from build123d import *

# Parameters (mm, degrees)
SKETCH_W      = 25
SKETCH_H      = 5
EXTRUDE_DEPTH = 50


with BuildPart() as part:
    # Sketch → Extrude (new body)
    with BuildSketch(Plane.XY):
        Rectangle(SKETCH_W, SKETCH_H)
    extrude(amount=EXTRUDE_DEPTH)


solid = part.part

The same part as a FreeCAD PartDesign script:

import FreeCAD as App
import Part
import Sketcher

V = App.Vector
Q = App.Units.Quantity


def add_polygon(sketch, points):
    """Adds a closed chain of lines whose ends are joined by coincident constraints."""
    first, n = sketch.GeometryCount, len(points)
    for a, b in zip(points, points[1:] + points[:1]):
        sketch.addGeometry(Part.LineSegment(App.Vector(*a, 0), App.Vector(*b, 0)), False)
    for i in range(n):
        sketch.addConstraint(Sketcher.Constraint("Coincident", first + i, 2, first + (i + 1) % n, 1))

doc = App.newDocument("Part")
body = doc.addObject("PartDesign::Body", "Body")

# Sketch on XY plane
sketch1 = doc.addObject("Sketcher::SketchObject", "Sketch")
body.addObject(sketch1)
sketch1.AttachmentSupport = (doc.XY_Plane, [""])
sketch1.MapMode = "FlatFace"
add_polygon(sketch1, [(-12, 2), (-12, -2), (12, -2), (12, 2)])  # lines 0-3
sketch1.addConstraint([
    Sketcher.Constraint("Vertical", 0),
    Sketcher.Constraint("Horizontal", 1),
    Sketcher.Constraint("Vertical", 2),
    Sketcher.Constraint("Horizontal", 3),
    Sketcher.Constraint("Symmetric", 0, 2, 2, 2, -1, 1),
    Sketcher.Constraint("DistanceX", 1, 1, 1, 2, Q("25 mm")),
    Sketcher.Constraint("DistanceY", 0, 2, 0, 1, Q("5 mm")),
])
pad1 = doc.addObject("PartDesign::Pad", "Pad")
body.addObject(pad1)
pad1.Profile = sketch1
pad1.Length = 50

doc.recompute()
